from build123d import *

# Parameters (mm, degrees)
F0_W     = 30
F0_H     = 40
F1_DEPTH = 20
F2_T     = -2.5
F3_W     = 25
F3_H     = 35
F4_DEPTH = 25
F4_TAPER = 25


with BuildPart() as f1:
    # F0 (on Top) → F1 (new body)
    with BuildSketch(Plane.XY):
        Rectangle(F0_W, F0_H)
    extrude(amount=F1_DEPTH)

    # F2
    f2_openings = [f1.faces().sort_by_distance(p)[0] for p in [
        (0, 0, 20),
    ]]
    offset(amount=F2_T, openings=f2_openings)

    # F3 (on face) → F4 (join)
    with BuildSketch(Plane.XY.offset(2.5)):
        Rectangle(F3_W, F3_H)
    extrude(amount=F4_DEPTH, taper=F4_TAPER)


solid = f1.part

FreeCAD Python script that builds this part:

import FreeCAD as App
import Part
import Sketcher
Q = App.Units.Quantity


def faces_at(feature, points):
    """Names of the faces that lie closest to the given points."""
    faces = feature.Shape.Faces
    near = lambda p: min(range(len(faces)), key=lambda i: faces[i].distToShape(Part.Vertex(*p))[0])
    return sorted({f"Face{near(p) + 1}" for p in points})

doc = App.newDocument("Part")
body = doc.addObject("PartDesign::Body", "Body")

# Sketch on XY plane
sketch1 = body.newObject("Sketcher::SketchObject", "Sketch")
sketch1.AttachmentSupport = (doc.getObject("XY_Plane"), [""])
sketch1.MapMode = "FlatFace"
sketch1.addGeometry([
    Part.LineSegment(App.Vector(-15, 20, 0), App.Vector(-15, -20, 0)),
    Part.LineSegment(App.Vector(-15, -20, 0), App.Vector(15, -20, 0)),
    Part.LineSegment(App.Vector(15, -20, 0), App.Vector(15, 20, 0)),
    Part.LineSegment(App.Vector(15, 20, 0), App.Vector(-15, 20, 0)),
], False)
sketch1.addConstraint([
    Sketcher.Constraint("Coincident", 0, 2, 1, 1),
    Sketcher.Constraint("Coincident", 1, 2, 2, 1),
    Sketcher.Constraint("Coincident", 2, 2, 3, 1),
    Sketcher.Constraint("Coincident", 3, 2, 0, 1),
    Sketcher.Constraint("Vertical", 0),
    Sketcher.Constraint("Horizontal", 1),
    Sketcher.Constraint("Vertical", 2),
    Sketcher.Constraint("Horizontal", 3),
    Sketcher.Constraint("Symmetric", 0, 2, 2, 2, -1, 1),
    Sketcher.Constraint("DistanceX", 1, 1, 1, 2, Q("30 mm")),
    Sketcher.Constraint("DistanceY", 0, 2, 0, 1, Q("40 mm")),
])
pad1 = body.newObject("PartDesign::Pad", "Pad")
pad1.Profile = sketch1
pad1.Length = 20
doc.recompute()

thickness = body.newObject("PartDesign::Thickness", "Thickness")
thickness.Base = (pad1, faces_at(pad1, [(0, 0, 20)]))
thickness.Value = 2.5
thickness.Reversed = True
thickness.Join = "Arc"

# Sketch on XY plane
sketch2 = body.newObject("Sketcher::SketchObject", "Sketch001")
sketch2.AttachmentSupport = (doc.getObject("XY_Plane"), [""])
sketch2.MapMode = "FlatFace"
sketch2.AttachmentOffset = App.Placement(App.Vector(0, 0, 2.5), App.Rotation())
sketch2.addGeometry([
    Part.LineSegment(App.Vector(-12, 18, 0), App.Vector(-12, -18, 0)),
    Part.LineSegment(App.Vector(-12, -18, 0), App.Vector(12, -18, 0)),
    Part.LineSegment(App.Vector(12, -18, 0), App.Vector(12, 18, 0)),
    Part.LineSegment(App.Vector(12, 18, 0), App.Vector(-12, 18, 0)),
], False)
sketch2.addConstraint([
    Sketcher.Constraint("Coincident", 0, 2, 1, 1),
    Sketcher.Constraint("Coincident", 1, 2, 2, 1),
    Sketcher.Constraint("Coincident", 2, 2, 3, 1),
    Sketcher.Constraint("Coincident", 3, 2, 0, 1),
    Sketcher.Constraint("Vertical", 0),
    Sketcher.Constraint("Horizontal", 1),
    Sketcher.Constraint("Vertical", 2),
    Sketcher.Constraint("Horizontal", 3),
    Sketcher.Constraint("Symmetric", 0, 2, 2, 2, -1, 1),
    Sketcher.Constraint("DistanceX", 1, 1, 1, 2, Q("25 mm")),
    Sketcher.Constraint("DistanceY", 0, 2, 0, 1, Q("35 mm")),
])
pad2 = body.newObject("PartDesign::Pad", "Pad001")
pad2.Profile = sketch2
pad2.Length = 25
pad2.TaperAngle = -25

doc.recompute()
